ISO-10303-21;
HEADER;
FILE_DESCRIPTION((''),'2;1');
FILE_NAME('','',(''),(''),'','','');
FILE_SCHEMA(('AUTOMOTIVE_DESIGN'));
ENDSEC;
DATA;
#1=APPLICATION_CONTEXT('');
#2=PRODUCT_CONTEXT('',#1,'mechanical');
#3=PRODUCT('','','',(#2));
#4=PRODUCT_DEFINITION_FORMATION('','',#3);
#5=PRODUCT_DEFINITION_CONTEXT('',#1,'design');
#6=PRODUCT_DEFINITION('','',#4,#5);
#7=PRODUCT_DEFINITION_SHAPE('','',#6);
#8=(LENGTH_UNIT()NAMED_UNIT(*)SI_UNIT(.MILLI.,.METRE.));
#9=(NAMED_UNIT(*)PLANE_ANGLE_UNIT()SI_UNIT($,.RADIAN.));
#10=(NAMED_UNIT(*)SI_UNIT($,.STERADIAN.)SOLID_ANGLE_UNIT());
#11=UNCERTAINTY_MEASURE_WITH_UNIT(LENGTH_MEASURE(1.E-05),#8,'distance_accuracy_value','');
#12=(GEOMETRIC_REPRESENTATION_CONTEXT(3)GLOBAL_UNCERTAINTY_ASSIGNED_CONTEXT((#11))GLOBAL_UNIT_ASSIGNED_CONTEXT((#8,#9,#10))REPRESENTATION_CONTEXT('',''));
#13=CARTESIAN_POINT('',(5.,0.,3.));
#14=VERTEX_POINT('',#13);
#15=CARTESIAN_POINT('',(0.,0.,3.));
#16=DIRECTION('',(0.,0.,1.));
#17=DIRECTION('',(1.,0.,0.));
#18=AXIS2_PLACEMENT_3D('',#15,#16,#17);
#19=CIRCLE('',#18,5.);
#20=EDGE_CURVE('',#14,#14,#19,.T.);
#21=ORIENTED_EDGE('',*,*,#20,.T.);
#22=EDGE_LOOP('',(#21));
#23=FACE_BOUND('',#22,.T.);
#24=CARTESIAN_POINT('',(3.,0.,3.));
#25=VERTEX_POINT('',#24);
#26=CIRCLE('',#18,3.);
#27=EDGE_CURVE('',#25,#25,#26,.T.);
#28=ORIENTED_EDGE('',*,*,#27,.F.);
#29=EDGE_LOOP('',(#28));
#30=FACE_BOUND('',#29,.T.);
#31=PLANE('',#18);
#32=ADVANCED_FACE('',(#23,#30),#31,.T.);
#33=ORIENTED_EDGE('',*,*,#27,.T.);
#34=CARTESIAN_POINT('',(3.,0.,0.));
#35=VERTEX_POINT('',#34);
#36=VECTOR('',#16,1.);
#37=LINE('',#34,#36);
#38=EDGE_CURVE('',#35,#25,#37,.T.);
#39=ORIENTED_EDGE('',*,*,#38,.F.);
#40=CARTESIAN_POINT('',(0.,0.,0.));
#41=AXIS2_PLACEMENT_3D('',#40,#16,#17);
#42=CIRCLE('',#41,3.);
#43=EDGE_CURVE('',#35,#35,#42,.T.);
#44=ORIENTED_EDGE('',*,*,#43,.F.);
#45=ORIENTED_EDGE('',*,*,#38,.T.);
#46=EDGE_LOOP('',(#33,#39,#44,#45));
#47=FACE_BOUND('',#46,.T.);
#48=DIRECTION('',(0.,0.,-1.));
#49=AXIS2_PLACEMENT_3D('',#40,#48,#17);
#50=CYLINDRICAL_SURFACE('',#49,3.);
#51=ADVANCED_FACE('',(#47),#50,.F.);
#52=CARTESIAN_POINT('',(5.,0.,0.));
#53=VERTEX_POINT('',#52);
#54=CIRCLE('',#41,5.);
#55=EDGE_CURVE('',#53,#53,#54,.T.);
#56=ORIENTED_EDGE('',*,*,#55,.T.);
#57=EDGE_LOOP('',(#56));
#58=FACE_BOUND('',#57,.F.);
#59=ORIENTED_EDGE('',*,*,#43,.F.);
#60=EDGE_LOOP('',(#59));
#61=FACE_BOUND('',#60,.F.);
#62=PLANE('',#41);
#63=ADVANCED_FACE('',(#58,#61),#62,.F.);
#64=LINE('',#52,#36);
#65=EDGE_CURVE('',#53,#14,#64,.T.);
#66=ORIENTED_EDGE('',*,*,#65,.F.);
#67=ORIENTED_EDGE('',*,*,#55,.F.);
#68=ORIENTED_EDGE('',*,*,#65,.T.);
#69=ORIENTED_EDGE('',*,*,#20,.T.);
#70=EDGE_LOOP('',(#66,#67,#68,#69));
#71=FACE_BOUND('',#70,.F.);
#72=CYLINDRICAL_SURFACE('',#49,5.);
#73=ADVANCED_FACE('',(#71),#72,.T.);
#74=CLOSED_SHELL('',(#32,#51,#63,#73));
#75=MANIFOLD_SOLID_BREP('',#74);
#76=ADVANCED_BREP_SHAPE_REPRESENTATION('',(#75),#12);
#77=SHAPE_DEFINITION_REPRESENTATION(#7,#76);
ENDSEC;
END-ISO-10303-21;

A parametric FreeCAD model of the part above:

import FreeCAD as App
import Part
import Sketcher

doc = App.newDocument("Part")
body = doc.addObject("PartDesign::Body", "Body")

sketch1 = body.newObject("Sketcher::SketchObject", "Sketch")
sketch1.AttachmentSupport = (doc.getObject("XY_Plane"), [""])
sketch1.MapMode = "FlatFace"
sketch1.addGeometry([
    Part.Circle(App.Vector(0, 0, 0), App.Vector(0, 0, 1), 5),
    Part.Circle(App.Vector(0, 0, 0), App.Vector(0, 0, 1), 3),
], False)
sketch1.addConstraint([
    Sketcher.Constraint("Coincident", 0, 3, -1, 1),
    Sketcher.Constraint("Coincident", 1, 3, -1, 1),
    Sketcher.Constraint("Diameter", 0, 10.0),
    Sketcher.Constraint("Diameter", 1, 6.0),
])
pad1 = body.newObject("PartDesign::Pad", "Pad")
pad1.Profile = sketch1
pad1.Length = 3

doc.recompute()
